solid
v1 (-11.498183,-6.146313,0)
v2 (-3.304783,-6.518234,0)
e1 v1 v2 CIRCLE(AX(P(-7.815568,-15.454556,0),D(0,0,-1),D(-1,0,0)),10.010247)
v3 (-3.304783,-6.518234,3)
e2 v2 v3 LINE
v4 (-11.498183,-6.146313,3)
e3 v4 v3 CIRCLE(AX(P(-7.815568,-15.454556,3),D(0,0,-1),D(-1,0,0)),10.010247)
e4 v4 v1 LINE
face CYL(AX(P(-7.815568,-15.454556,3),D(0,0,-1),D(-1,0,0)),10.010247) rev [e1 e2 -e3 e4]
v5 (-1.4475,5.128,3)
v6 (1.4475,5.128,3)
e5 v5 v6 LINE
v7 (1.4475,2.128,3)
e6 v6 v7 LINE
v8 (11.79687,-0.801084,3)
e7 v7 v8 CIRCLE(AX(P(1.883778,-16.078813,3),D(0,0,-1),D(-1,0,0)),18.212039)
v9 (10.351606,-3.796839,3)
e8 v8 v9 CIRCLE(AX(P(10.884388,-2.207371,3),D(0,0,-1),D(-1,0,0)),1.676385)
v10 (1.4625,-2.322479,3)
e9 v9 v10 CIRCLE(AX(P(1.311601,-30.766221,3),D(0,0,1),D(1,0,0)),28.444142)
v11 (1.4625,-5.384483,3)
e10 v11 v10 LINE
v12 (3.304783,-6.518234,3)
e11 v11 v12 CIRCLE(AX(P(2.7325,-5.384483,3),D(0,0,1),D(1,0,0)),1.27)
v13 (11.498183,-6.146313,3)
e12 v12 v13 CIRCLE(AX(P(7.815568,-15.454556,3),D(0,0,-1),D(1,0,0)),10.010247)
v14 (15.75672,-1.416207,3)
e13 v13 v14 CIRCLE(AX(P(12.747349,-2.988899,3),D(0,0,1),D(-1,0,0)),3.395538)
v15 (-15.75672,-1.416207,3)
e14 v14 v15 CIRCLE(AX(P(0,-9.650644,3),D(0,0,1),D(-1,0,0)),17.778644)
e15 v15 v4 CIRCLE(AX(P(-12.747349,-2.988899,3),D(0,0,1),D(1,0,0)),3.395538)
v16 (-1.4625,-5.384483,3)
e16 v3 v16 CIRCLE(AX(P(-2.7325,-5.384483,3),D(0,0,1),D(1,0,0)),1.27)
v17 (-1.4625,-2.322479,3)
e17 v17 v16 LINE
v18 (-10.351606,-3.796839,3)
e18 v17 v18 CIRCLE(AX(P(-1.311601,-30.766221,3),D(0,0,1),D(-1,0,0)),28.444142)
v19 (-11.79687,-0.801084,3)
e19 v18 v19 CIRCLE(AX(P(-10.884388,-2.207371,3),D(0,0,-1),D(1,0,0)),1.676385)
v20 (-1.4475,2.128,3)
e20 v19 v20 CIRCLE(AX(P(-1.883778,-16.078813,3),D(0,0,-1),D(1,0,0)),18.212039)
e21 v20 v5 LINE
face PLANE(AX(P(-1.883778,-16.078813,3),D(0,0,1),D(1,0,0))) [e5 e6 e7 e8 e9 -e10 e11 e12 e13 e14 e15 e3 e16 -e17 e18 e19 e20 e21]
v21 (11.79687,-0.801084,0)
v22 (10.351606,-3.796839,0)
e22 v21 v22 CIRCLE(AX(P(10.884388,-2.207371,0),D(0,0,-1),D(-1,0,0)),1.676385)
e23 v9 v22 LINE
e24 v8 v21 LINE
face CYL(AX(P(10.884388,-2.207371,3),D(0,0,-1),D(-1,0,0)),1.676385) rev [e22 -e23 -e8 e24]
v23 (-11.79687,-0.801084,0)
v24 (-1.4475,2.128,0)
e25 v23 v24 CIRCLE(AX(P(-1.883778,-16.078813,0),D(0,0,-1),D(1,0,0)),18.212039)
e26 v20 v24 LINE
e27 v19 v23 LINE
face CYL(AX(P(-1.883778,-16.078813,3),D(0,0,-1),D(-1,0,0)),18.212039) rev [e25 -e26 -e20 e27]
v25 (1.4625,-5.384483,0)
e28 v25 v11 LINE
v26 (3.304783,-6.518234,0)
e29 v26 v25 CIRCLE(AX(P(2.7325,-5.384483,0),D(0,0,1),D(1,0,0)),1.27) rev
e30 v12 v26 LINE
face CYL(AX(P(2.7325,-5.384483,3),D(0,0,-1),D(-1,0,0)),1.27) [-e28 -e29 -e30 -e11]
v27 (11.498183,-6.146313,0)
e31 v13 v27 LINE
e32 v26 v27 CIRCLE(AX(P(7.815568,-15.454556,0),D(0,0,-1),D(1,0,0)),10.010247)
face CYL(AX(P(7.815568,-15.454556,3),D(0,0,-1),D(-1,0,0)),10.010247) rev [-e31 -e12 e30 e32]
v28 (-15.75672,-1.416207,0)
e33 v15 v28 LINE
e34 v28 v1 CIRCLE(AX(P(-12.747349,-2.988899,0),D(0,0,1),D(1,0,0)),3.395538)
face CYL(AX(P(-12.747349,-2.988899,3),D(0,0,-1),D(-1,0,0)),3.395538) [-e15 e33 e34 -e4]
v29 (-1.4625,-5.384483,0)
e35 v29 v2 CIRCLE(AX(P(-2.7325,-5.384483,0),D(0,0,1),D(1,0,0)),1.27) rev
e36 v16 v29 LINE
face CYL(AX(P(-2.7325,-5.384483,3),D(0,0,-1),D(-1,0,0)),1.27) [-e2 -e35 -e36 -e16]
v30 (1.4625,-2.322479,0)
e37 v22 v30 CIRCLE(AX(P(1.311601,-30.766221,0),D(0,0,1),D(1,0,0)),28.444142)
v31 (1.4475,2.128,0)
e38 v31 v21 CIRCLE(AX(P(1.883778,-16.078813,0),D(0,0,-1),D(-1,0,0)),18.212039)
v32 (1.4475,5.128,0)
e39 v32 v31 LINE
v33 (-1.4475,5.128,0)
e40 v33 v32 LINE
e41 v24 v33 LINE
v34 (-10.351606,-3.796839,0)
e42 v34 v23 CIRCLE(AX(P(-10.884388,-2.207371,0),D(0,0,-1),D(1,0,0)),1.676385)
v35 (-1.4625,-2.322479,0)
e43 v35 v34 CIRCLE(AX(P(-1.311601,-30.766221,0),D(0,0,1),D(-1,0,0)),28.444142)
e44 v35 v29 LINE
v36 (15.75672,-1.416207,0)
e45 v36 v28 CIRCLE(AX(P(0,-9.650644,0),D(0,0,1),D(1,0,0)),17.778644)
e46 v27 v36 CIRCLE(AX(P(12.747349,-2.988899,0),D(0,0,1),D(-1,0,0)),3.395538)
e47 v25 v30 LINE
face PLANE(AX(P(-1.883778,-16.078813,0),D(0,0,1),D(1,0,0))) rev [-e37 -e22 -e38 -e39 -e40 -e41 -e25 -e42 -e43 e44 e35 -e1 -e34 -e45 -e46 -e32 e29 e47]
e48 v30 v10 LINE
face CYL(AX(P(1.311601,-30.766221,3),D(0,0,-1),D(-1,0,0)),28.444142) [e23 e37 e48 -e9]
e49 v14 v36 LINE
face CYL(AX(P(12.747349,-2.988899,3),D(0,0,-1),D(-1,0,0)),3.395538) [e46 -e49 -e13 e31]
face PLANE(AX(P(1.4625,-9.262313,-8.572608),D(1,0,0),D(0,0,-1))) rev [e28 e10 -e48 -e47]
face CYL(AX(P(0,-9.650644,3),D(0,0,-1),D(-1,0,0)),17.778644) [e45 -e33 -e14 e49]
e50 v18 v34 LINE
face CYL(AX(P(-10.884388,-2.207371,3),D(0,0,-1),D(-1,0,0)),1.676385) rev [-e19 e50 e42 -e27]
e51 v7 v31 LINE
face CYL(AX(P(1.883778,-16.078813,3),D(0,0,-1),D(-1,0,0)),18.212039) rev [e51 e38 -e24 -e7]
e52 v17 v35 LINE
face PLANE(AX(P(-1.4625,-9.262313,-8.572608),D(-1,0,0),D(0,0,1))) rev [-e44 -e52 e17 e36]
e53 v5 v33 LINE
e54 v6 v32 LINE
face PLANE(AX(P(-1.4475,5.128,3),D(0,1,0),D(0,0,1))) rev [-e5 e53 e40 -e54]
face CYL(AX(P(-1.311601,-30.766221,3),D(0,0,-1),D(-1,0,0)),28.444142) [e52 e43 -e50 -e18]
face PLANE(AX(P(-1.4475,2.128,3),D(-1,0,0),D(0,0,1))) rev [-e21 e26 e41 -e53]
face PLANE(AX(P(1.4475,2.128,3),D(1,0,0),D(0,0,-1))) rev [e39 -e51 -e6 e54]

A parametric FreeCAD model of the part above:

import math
import FreeCAD as App
import Part
import Sketcher
from FreeCAD import Vector
Q = App.Units.Quantity


def edges_at(feature, points):
    """Names of the edges that pass closest to the given points."""
    edges = feature.Shape.Edges
    near = lambda p: min(range(len(edges)), key=lambda i: edges[i].distToShape(Part.Vertex(*p))[0])
    return sorted({f"Edge{near(p) + 1}" for p in points})

doc = App.newDocument("Part")
body = doc.addObject("PartDesign::Body", "Body")

# Sketch on XY plane
sketch1 = doc.addObject("Sketcher::SketchObject", "Sketch")
body.addObject(sketch1)
sketch1.AttachmentSupport = (doc.XY_Plane, [""])
sketch1.MapMode = "FlatFace"
sketch1.addGeometry(Part.LineSegment(Vector(-1.4475, 2.128, 0), Vector(-1.4475, 5.128, 0)), False)
sketch1.addGeometry(Part.LineSegment(Vector(-1.4475, 5.128, 0), Vector(1.4475, 5.128, 0)), False)
sketch1.addGeometry(Part.LineSegment(Vector(1.4475, 5.128, 0), Vector(1.4475, 2.128, 0)), False)
sketch1.addGeometry(Part.ArcOfCircle(Part.Circle(Vector(1.883778, -16.078813, 0), Vector(0, 0, 1), 18.212039), math.radians(57.022114), math.radians(91.372679)), False)
sketch1.addGeometry(Part.ArcOfCircle(Part.Circle(Vector(10.884388, -2.207371, 0), Vector(0, 0, 1), 1.676385), math.radians(-108.530899), math.radians(57.022114)), False)
sketch1.addGeometry(Part.ArcOfCircle(Part.Circle(Vector(1.311601, -30.766221, 0), Vector(0, 0, 1), 28.444142), math.radians(71.469101), math.radians(90)), False)
sketch1.addGeometry(Part.LineSegment(Vector(1.311601, -2.322079, 0), Vector(1.311601, -7.845124, 0)), False)
sketch1.addGeometry(Part.ArcOfCircle(Part.Circle(Vector(7.815568, -15.454556, 0), Vector(0, 0, 1), 10.010247), math.radians(68.41479), math.radians(130.521319)), False)
sketch1.addGeometry(Part.ArcOfCircle(Part.Circle(Vector(12.747349, -2.988899, 0), Vector(0, 0, 1), 3.395538), math.radians(-111.58521), math.radians(27.591498)), False)
sketch1.addGeometry(Part.ArcOfCircle(Part.Circle(Vector(0, -9.650644, 0), Vector(0, 0, 1), 17.778644), math.radians(27.591498), math.radians(90)), False)
sketch1.addGeometry(Part.ArcOfCircle(Part.Circle(Vector(0, -9.650644, 0), Vector(0, 0, 1), 17.778644), math.radians(90), math.radians(152.408502)), False)
sketch1.addGeometry(Part.ArcOfCircle(Part.Circle(Vector(-12.747349, -2.988899, 0), Vector(0, 0, 1), 3.395538), math.radians(152.408502), math.radians(291.58521)), False)
sketch1.addGeometry(Part.ArcOfCircle(Part.Circle(Vector(-7.815568, -15.454556, 0), Vector(0, 0, 1), 10.010247), math.radians(49.478681), math.radians(111.58521)), False)
sketch1.addGeometry(Part.LineSegment(Vector(-1.311601, -7.845124, 0), Vector(-1.311601, -2.322079, 0)), False)
sketch1.addGeometry(Part.ArcOfCircle(Part.Circle(Vector(-1.311601, -30.766221, 0), Vector(0, 0, 1), 28.444142), math.radians(90), math.radians(108.530899)), False)
sketch1.addGeometry(Part.ArcOfCircle(Part.Circle(Vector(-10.884388, -2.207371, 0), Vector(0, 0, 1), 1.676385), math.radians(122.977886), math.radians(288.530899)), False)
sketch1.addGeometry(Part.ArcOfCircle(Part.Circle(Vector(-1.883778, -16.078813, 0), Vector(0, 0, 1), 18.212039), math.radians(88.627321), math.radians(122.977886)), False)
sketch1.addConstraint(Sketcher.Constraint("Coincident", 0, 2, 1, 1))
sketch1.addConstraint(Sketcher.Constraint("Coincident", 1, 2, 2, 1))
sketch1.addConstraint(Sketcher.Constraint("Coincident", 2, 2, 3, 2))
sketch1.addConstraint(Sketcher.Constraint("Tangent", 3, 1, 4, 2))
sketch1.addConstraint(Sketcher.Constraint("Tangent", 4, 1, 5, 1))
sketch1.addConstraint(Sketcher.Constraint("Coincident", 5, 2, 6, 1))
sketch1.addConstraint(Sketcher.Constraint("Coincident", 6, 2, 7, 2))
sketch1.addConstraint(Sketcher.Constraint("Tangent", 7, 1, 8, 1))
sketch1.addConstraint(Sketcher.Constraint("Tangent", 8, 2, 9, 1))
sketch1.addConstraint(Sketcher.Constraint("Tangent", 9, 2, 10, 1))
sketch1.addConstraint(Sketcher.Constraint("Tangent", 10, 2, 11, 1))
sketch1.addConstraint(Sketcher.Constraint("Tangent", 11, 2, 12, 2))
sketch1.addConstraint(Sketcher.Constraint("Coincident", 12, 1, 13, 1))
sketch1.addConstraint(Sketcher.Constraint("Coincident", 13, 2, 14, 1))
sketch1.addConstraint(Sketcher.Constraint("Tangent", 14, 2, 15, 2))
sketch1.addConstraint(Sketcher.Constraint("Tangent", 15, 1, 16, 2))
sketch1.addConstraint(Sketcher.Constraint("Coincident", 16, 1, 0, 1))
sketch1.addConstraint(Sketcher.Constraint("Vertical", 0))
sketch1.addConstraint(Sketcher.Constraint("Horizontal", 1))
sketch1.addConstraint(Sketcher.Constraint("Vertical", 2))
sketch1.addConstraint(Sketcher.Constraint("Vertical", 6))
sketch1.addConstraint(Sketcher.Constraint("Vertical", 13))
sketch1.addConstraint(Sketcher.Constraint("Equal", 9, 10))
sketch1.addConstraint(Sketcher.Constraint("Equal", 8, 11))
sketch1.addConstraint(Sketcher.Constraint("Equal", 7, 12))
sketch1.addConstraint(Sketcher.Constraint("Equal", 5, 14))
sketch1.addConstraint(Sketcher.Constraint("Equal", 4, 15))
sketch1.addConstraint(Sketcher.Constraint("Equal", 3, 16))
sketch1.addConstraint(Sketcher.Constraint("Symmetric", 8, 3, 11, 3, -2))
sketch1.addConstraint(Sketcher.Constraint("Symmetric", 5, 3, 14, 3, -2))
sketch1.addConstraint(Sketcher.Constraint("Symmetric", 3, 3, 16, 3, -2))
sketch1.addConstraint(Sketcher.Constraint("Symmetric", 6, 2, 12, 1, -2))
sketch1.addConstraint(Sketcher.Constraint("PointOnObject", 9, 2, -2))
sketch1.addConstraint(Sketcher.Constraint("Horizontal", 2, 2, 16, 1))
sketch1.addConstraint(Sketcher.Constraint("Vertical", 14, 3, 12, 1))
sketch1.addConstraint(Sketcher.Constraint("DistanceY", 0, 1, 0, 2, Q("3 mm")))
sketch1.addConstraint(Sketcher.Constraint("DistanceY", 1, 2, 9, 2, Q("3 mm")))
sketch1.addConstraint(Sketcher.Constraint("DistanceX", 1, 1, 1, 2, Q("2.895 mm")))
sketch1.addConstraint(Sketcher.Constraint("Radius", 3, Q("18.212039 mm")))
sketch1.addConstraint(Sketcher.Constraint("DistanceY", -1, 1, 0, 2, Q("5.128 mm")))
sketch1.addConstraint(Sketcher.Constraint("Radius", 4, Q("1.676385 mm")))
sketch1.addConstraint(Sketcher.Constraint("Radius", 5, Q("28.444142 mm")))
sketch1.addConstraint(Sketcher.Constraint("Radius", 7, Q("10.010247 mm")))
sketch1.addConstraint(Sketcher.Constraint("Radius", 8, Q("3.395538 mm")))
sketch1.addConstraint(Sketcher.Constraint("Radius", 9, Q("17.778644 mm")))
sketch1.addConstraint(Sketcher.Constraint("DistanceX", -1, 1, 5, 3, Q("1.311601 mm")))
sketch1.addConstraint(Sketcher.Constraint("DistanceY", 8, 3, -1, 1, Q("2.988899 mm")))
sketch1.addConstraint(Sketcher.Constraint("DistanceY", 6, 2, 6, 1, Q("5.523046 mm")))
sketch1.addConstraint(Sketcher.Constraint("DistanceX", -1, 1, 3, 3, Q("1.883778 mm")))
sketch1.addConstraint(Sketcher.Constraint("DistanceY", 4, 3, -1, 1, Q("2.207371 mm")))
pad1 = doc.addObject("PartDesign::Pad", "Pad")
body.addObject(pad1)
pad1.Profile = sketch1
pad1.Length = 3

# Sketch on XY plane
sketch2 = doc.addObject("Sketcher::SketchObject", "Sketch001")
body.addObject(sketch2)
sketch2.AttachmentSupport = (doc.XY_Plane, [""])
sketch2.MapMode = "FlatFace"
sketch2.AttachmentOffset = App.Placement(Vector(0, 0, 3), App.Rotation())
sketch2.addGeometry(Part.LineSegment(Vector(-1.4625, -1.20415, 0), Vector(-1.4625, -9.262313, 0)), False)
sketch2.addGeometry(Part.LineSegment(Vector(-1.4625, -9.262313, 0), Vector(1.4625, -9.262313, 0)), False)
sketch2.addGeometry(Part.LineSegment(Vector(1.4625, -9.262313, 0), Vector(1.4625, -1.20415, 0)), False)
sketch2.addGeometry(Part.LineSegment(Vector(1.4625, -1.20415, 0), Vector(-1.4625, -1.20415, 0)), False)
sketch2.addConstraint(Sketcher.Constraint("Coincident", 0, 2, 1, 1))
sketch2.addConstraint(Sketcher.Constraint("Coincident", 1, 2, 2, 1))
sketch2.addConstraint(Sketcher.Constraint("Coincident", 2, 2, 3, 1))
sketch2.addConstraint(Sketcher.Constraint("Coincident", 3, 2, 0, 1))
sketch2.addConstraint(Sketcher.Constraint("Vertical", 0))
sketch2.addConstraint(Sketcher.Constraint("Horizontal", 1))
sketch2.addConstraint(Sketcher.Constraint("Vertical", 2))
sketch2.addConstraint(Sketcher.Constraint("Horizontal", 3))
sketch2.addConstraint(Sketcher.Constraint("DistanceX", 1, 1, 1, 2, Q("2.925 mm")))
sketch2.addConstraint(Sketcher.Constraint("DistanceX", 0, 2, -1, 1, Q("1.4625 mm")))
sketch2.addConstraint(Sketcher.Constraint("DistanceY", 0, 2, 0, 1, Q("8.058162 mm")))
sketch2.addConstraint(Sketcher.Constraint("DistanceY", 2, 2, -1, 1, Q("1.20415 mm")))
pocket1 = doc.addObject("PartDesign::Pocket", "Pocket")
body.addObject(pocket1)
pocket1.Profile = sketch2
pocket1.Length = 3
doc.recompute()

fillet = doc.addObject("PartDesign::Fillet", "Fillet")
body.addObject(fillet)
fillet.Base = (pocket1, edges_at(pocket1, [(1.462, -7.719, 1.5), (-1.462, -7.719, 1.5)]))
fillet.Radius = 1.27

doc.recompute()
